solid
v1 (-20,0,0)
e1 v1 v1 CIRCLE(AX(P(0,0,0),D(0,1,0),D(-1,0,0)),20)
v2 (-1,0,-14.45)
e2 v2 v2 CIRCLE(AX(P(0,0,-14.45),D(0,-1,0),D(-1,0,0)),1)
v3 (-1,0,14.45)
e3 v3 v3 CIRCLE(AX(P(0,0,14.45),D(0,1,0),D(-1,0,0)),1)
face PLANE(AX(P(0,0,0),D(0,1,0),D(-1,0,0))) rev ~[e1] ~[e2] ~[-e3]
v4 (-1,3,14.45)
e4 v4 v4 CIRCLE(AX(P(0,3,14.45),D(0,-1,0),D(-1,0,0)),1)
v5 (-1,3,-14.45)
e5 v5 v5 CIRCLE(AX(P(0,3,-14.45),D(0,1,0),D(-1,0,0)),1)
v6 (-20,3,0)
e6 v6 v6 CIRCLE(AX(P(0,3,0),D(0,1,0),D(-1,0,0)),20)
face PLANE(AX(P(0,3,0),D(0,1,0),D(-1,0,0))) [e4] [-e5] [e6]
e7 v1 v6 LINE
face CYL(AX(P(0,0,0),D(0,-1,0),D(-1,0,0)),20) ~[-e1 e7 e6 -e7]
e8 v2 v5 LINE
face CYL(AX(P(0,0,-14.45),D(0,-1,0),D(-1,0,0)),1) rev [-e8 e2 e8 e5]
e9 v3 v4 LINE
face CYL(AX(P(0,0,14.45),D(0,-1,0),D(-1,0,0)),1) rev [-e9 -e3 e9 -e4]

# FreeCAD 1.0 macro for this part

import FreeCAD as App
import Part
import Sketcher

V = App.Vector
Q = App.Units.Quantity

doc = App.newDocument("Part")
params = doc.addObject("Spreadsheet::Sheet", "Params")
for row, (alias, value) in enumerate([
    ("sketch1_diameter", "40 mm"),
    ("sketch1_diameter2", "2 mm"),
    ("pad1_length", "3 mm"),
], start=1):
    params.set(f"A{row}", alias)
    params.set(f"B{row}", "=" + value)
    params.setAlias(f"B{row}", alias)

body = doc.addObject("PartDesign::Body", "Body")

# Sketch on XZ plane
sketch1 = body.newObject("Sketcher::SketchObject", "Sketch")
sketch1.AttachmentSupport = (doc.getObject("XZ_Plane"), [""])
sketch1.MapMode = "FlatFace"
sketch1.addGeometry([
    Part.Circle(V(0, 0, 0), V(0, 0, 1), 20),
    Part.Circle(V(0, -14.4, 0), V(0, 0, 1), 1),
    Part.Circle(V(0, 14.4, 0), V(0, 0, 1), 1),
], False)
sketch1.addConstraint([
    Sketcher.Constraint("Coincident", 0, 3, -1, 1),
    Sketcher.Constraint("Equal", 1, 2),
    Sketcher.Constraint("Symmetric", 1, 3, 2, 3, -1, 1),
    Sketcher.Constraint("PointOnObject", 1, 3, -2),
    Sketcher.Constraint("Diameter", 0, Q("40 mm")),
    Sketcher.Constraint("Diameter", 1, Q("2 mm")),
    Sketcher.Constraint("DistanceY", 1, 3, 2, 3, Q("28.9 mm")),
])
sketch1.setExpression("Constraints[4]", "Params.sketch1_diameter")
sketch1.setExpression("Constraints[5]", "Params.sketch1_diameter2")
pad1 = body.newObject("PartDesign::Pad", "Pad")
pad1.Profile = sketch1
pad1.setExpression("Length", "Params.pad1_length")
pad1.Reversed = True

doc.recompute()
